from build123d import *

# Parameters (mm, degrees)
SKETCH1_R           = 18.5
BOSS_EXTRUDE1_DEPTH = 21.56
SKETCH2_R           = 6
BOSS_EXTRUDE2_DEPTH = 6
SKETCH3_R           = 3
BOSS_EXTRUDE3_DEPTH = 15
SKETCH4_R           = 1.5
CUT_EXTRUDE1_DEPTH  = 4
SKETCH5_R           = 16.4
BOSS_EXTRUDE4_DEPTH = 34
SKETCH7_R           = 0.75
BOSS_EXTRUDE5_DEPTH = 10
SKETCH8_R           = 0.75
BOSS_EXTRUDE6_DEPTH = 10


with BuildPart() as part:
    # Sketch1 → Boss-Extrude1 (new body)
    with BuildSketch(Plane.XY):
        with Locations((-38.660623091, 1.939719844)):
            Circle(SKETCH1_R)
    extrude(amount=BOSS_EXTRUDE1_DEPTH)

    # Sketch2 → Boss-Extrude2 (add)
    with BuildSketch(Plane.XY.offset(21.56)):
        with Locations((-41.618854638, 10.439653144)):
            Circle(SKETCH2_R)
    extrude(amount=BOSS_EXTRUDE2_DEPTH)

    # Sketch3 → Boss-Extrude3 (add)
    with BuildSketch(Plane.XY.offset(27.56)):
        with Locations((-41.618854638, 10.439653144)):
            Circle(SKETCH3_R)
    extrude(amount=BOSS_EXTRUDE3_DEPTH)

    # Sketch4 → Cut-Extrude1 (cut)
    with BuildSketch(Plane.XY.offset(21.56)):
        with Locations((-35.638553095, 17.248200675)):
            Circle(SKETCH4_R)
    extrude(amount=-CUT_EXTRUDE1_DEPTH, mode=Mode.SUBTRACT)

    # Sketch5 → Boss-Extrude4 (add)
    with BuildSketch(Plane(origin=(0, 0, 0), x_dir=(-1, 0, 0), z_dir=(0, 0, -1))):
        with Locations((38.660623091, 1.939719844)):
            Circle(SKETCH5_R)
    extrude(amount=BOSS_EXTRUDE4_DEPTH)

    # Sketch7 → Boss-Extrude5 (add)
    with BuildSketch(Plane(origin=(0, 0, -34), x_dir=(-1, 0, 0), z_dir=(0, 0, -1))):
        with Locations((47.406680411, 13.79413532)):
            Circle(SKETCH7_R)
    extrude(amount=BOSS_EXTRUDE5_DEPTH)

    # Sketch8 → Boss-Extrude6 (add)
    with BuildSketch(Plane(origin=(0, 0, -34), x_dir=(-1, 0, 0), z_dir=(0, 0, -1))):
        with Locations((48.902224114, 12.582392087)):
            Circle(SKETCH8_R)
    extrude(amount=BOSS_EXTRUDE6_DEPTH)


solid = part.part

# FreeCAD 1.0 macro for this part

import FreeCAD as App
import Part
import Sketcher

doc = App.newDocument("Part")
params = doc.addObject("Spreadsheet::Sheet", "Params")
for row, (alias, value) in enumerate([
    ("sketch1_diameter", "37 mm"),
    ("pad1_length", "21.56 mm"),
    ("sketch2_diameter", "12 mm"),
    ("pad2_length", "6 mm"),
    ("sketch3_diameter", "6 mm"),
    ("pad3_length", "15 mm"),
    ("sketch4_diameter", "3 mm"),
    ("pocket1_length", "4 mm"),
    ("sketch5_diameter", "32.8 mm"),
    ("pad4_length", "34 mm"),
    ("sketch6_diameter", "1.5 mm"),
    ("pad5_length", "10 mm"),
    ("sketch7_diameter", "1.5 mm"),
    ("pad6_length", "10 mm"),
], start=1):
    params.set(f"A{row}", alias)
    params.set(f"B{row}", "=" + value)
    params.setAlias(f"B{row}", alias)

body = doc.addObject("PartDesign::Body", "Body")

# Sketch on XY plane
sketch1 = doc.addObject("Sketcher::SketchObject", "Sketch")
body.addObject(sketch1)
sketch1.AttachmentSupport = (doc.XY_Plane, [""])
sketch1.MapMode = "FlatFace"
sketch1.addGeometry(Part.Circle(App.Vector(-39, 2, 0), App.Vector(0, 0, 1), 18), False)
sketch1.addConstraint(Sketcher.Constraint("Diameter", 0, 37.0))
sketch1.addConstraint(Sketcher.Constraint("DistanceY", -1, 1, 0, 3, 1.93972))
sketch1.addConstraint(Sketcher.Constraint("DistanceX", 0, 3, -1, 1, 38.660623))
sketch1.setExpression("Constraints[0]", "Params.sketch1_diameter")
pad1 = doc.addObject("PartDesign::Pad", "Pad")
body.addObject(pad1)
pad1.Profile = sketch1
pad1.setExpression("Length", "Params.pad1_length")

# Sketch on XY plane
sketch2 = doc.addObject("Sketcher::SketchObject", "Sketch001")
body.addObject(sketch2)
sketch2.AttachmentSupport = (doc.XY_Plane, [""])
sketch2.MapMode = "FlatFace"
sketch2.AttachmentOffset = App.Placement(App.Vector(0, 0, 21.56), App.Rotation())
sketch2.addGeometry(Part.Circle(App.Vector(-42, 10, 0), App.Vector(0, 0, 1), 6), False)
sketch2.addConstraint(Sketcher.Constraint("Diameter", 0, 12.0))
sketch2.addConstraint(Sketcher.Constraint("DistanceX", 0, 3, -1, 1, 41.618855))
sketch2.addConstraint(Sketcher.Constraint("DistanceY", -1, 1, 0, 3, 10.439653))
sketch2.setExpression("Constraints[0]", "Params.sketch2_diameter")
pad2 = doc.addObject("PartDesign::Pad", "Pad001")
body.addObject(pad2)
pad2.Profile = sketch2
pad2.setExpression("Length", "Params.pad2_length")

# Sketch on XY plane
sketch3 = doc.addObject("Sketcher::SketchObject", "Sketch002")
body.addObject(sketch3)
sketch3.AttachmentSupport = (doc.XY_Plane, [""])
sketch3.MapMode = "FlatFace"
sketch3.AttachmentOffset = App.Placement(App.Vector(0, 0, 27.56), App.Rotation())
sketch3.addGeometry(Part.Circle(App.Vector(-41.6, 10.4, 0), App.Vector(0, 0, 1), 3), False)
sketch3.addConstraint(Sketcher.Constraint("Diameter", 0, 6.0))
sketch3.addConstraint(Sketcher.Constraint("DistanceX", 0, 3, -1, 1, 41.618855))
sketch3.addConstraint(Sketcher.Constraint("DistanceY", -1, 1, 0, 3, 10.439653))
sketch3.setExpression("Constraints[0]", "Params.sketch3_diameter")
pad3 = doc.addObject("PartDesign::Pad", "Pad002")
body.addObject(pad3)
pad3.Profile = sketch3
pad3.setExpression("Length", "Params.pad3_length")

# Sketch on XY plane
sketch4 = doc.addObject("Sketcher::SketchObject", "Sketch003")
body.addObject(sketch4)
sketch4.AttachmentSupport = (doc.XY_Plane, [""])
sketch4.MapMode = "FlatFace"
sketch4.AttachmentOffset = App.Placement(App.Vector(0, 0, 21.56), App.Rotation())
sketch4.addGeometry(Part.Circle(App.Vector(-35.6, 17.2, 0), App.Vector(0, 0, 1), 1.5), False)
sketch4.addConstraint(Sketcher.Constraint("Diameter", 0, 3.0))
sketch4.addConstraint(Sketcher.Constraint("DistanceY", -1, 1, 0, 3, 17.248201))
sketch4.addConstraint(Sketcher.Constraint("DistanceX", 0, 3, -1, 1, 35.638553))
sketch4.setExpression("Constraints[0]", "Params.sketch4_diameter")
pocket1 = doc.addObject("PartDesign::Pocket", "Pocket")
body.addObject(pocket1)
pocket1.Profile = sketch4
pocket1.setExpression("Length", "Params.pocket1_length")

# Sketch on XY plane
sketch5 = doc.addObject("Sketcher::SketchObject", "Sketch004")
body.addObject(sketch5)
sketch5.AttachmentSupport = (doc.XY_Plane, [""])
sketch5.MapMode = "FlatFace"
sketch5.addGeometry(Part.Circle(App.Vector(-39, 2, 0), App.Vector(0, 0, 1), 16), False)
sketch5.addConstraint(Sketcher.Constraint("Diameter", 0, 32.8))
sketch5.addConstraint(Sketcher.Constraint("DistanceY", -1, 1, 0, 3, 1.93972))
sketch5.addConstraint(Sketcher.Constraint("DistanceX", 0, 3, -1, 1, 38.660623))
sketch5.setExpression("Constraints[0]", "Params.sketch5_diameter")
pad4 = doc.addObject("PartDesign::Pad", "Pad003")
body.addObject(pad4)
pad4.Profile = sketch5
pad4.setExpression("Length", "Params.pad4_length")
pad4.Reversed = True

# Sketch on XY plane
sketch6 = doc.addObject("Sketcher::SketchObject", "Sketch005")
body.addObject(sketch6)
sketch6.AttachmentSupport = (doc.XY_Plane, [""])
sketch6.MapMode = "FlatFace"
sketch6.AttachmentOffset = App.Placement(App.Vector(0, 0, -34), App.Rotation())
sketch6.addGeometry(Part.Circle(App.Vector(-47.4, 13.8, 0), App.Vector(0, 0, 1), 0.8), False)
sketch6.addConstraint(Sketcher.Constraint("Diameter", 0, 1.5))
sketch6.addConstraint(Sketcher.Constraint("DistanceX", 0, 3, -1, 1, 47.40668))
sketch6.addConstraint(Sketcher.Constraint("DistanceY", -1, 1, 0, 3, 13.794135))
sketch6.setExpression("Constraints[0]", "Params.sketch6_diameter")
pad5 = doc.addObject("PartDesign::Pad", "Pad004")
body.addObject(pad5)
pad5.Profile = sketch6
pad5.setExpression("Length", "Params.pad5_length")
pad5.Reversed = True

# Sketch on XY plane
sketch7 = doc.addObject("Sketcher::SketchObject", "Sketch006")
body.addObject(sketch7)
sketch7.AttachmentSupport = (doc.XY_Plane, [""])
sketch7.MapMode = "FlatFace"
sketch7.AttachmentOffset = App.Placement(App.Vector(0, 0, -34), App.Rotation())
sketch7.addGeometry(Part.Circle(App.Vector(-48.9, 12.6, 0), App.Vector(0, 0, 1), 0.8), False)
sketch7.addConstraint(Sketcher.Constraint("Diameter", 0, 1.5))
sketch7.addConstraint(Sketcher.Constraint("DistanceX", 0, 3, -1, 1, 48.902224))
sketch7.addConstraint(Sketcher.Constraint("DistanceY", -1, 1, 0, 3, 12.582392))
sketch7.setExpression("Constraints[0]", "Params.sketch7_diameter")
pad6 = doc.addObject("PartDesign::Pad", "Pad005")
body.addObject(pad6)
pad6.Profile = sketch7
pad6.setExpression("Length", "Params.pad6_length")
pad6.Reversed = True

doc.recompute()
